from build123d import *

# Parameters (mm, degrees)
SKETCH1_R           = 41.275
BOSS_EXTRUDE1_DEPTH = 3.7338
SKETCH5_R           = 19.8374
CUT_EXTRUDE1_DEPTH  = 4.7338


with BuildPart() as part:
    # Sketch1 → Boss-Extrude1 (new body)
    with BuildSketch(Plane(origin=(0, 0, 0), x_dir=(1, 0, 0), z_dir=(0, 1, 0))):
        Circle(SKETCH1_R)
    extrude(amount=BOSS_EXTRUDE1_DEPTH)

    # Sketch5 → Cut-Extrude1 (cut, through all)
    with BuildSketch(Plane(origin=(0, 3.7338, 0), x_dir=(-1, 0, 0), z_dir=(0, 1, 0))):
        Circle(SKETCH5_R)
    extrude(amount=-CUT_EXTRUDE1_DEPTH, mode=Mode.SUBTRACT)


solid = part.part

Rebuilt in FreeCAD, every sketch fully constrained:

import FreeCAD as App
import Part
import Sketcher

V = App.Vector
Q = App.Units.Quantity

doc = App.newDocument("Part")
body = doc.addObject("PartDesign::Body", "Body")

sketch1 = body.newObject("Sketcher::SketchObject", "Sketch")
sketch1.AttachmentSupport = (doc.getObject("XZ_Plane"), [""])
sketch1.MapMode = "FlatFace"
sketch1.addGeometry(Part.Circle(V(0, 0, 0), V(0, 0, 1), 41), False)
sketch1.addConstraint([
    Sketcher.Constraint("Coincident", 0, 3, -1, 1),
    Sketcher.Constraint("Diameter", 0, Q("3.25 in")),
])
pad1 = body.newObject("PartDesign::Pad", "Pad")
pad1.Profile = sketch1
pad1.Length = Q("0.147 in")
pad1.Reversed = True

sketch2 = body.newObject("Sketcher::SketchObject", "Sketch001")
sketch2.AttachmentSupport = (doc.getObject("XZ_Plane"), [""])
sketch2.MapMode = "FlatFace"
sketch2.AttachmentOffset = App.Placement(V(0, 0, -0.147 * 25.4), App.Rotation())
sketch2.addGeometry(Part.Circle(V(0, 0, 0), V(0, 0, 1), 20), False)
sketch2.addConstraint([
    Sketcher.Constraint("Coincident", 0, 3, -1, 1),
    Sketcher.Constraint("Diameter", 0, Q("1.562 in")),
])
pocket1 = body.newObject("PartDesign::Pocket", "Pocket")
pocket1.Profile = sketch2
pocket1.Type = "ThroughAll"
pocket1.Reversed = True

doc.recompute()
